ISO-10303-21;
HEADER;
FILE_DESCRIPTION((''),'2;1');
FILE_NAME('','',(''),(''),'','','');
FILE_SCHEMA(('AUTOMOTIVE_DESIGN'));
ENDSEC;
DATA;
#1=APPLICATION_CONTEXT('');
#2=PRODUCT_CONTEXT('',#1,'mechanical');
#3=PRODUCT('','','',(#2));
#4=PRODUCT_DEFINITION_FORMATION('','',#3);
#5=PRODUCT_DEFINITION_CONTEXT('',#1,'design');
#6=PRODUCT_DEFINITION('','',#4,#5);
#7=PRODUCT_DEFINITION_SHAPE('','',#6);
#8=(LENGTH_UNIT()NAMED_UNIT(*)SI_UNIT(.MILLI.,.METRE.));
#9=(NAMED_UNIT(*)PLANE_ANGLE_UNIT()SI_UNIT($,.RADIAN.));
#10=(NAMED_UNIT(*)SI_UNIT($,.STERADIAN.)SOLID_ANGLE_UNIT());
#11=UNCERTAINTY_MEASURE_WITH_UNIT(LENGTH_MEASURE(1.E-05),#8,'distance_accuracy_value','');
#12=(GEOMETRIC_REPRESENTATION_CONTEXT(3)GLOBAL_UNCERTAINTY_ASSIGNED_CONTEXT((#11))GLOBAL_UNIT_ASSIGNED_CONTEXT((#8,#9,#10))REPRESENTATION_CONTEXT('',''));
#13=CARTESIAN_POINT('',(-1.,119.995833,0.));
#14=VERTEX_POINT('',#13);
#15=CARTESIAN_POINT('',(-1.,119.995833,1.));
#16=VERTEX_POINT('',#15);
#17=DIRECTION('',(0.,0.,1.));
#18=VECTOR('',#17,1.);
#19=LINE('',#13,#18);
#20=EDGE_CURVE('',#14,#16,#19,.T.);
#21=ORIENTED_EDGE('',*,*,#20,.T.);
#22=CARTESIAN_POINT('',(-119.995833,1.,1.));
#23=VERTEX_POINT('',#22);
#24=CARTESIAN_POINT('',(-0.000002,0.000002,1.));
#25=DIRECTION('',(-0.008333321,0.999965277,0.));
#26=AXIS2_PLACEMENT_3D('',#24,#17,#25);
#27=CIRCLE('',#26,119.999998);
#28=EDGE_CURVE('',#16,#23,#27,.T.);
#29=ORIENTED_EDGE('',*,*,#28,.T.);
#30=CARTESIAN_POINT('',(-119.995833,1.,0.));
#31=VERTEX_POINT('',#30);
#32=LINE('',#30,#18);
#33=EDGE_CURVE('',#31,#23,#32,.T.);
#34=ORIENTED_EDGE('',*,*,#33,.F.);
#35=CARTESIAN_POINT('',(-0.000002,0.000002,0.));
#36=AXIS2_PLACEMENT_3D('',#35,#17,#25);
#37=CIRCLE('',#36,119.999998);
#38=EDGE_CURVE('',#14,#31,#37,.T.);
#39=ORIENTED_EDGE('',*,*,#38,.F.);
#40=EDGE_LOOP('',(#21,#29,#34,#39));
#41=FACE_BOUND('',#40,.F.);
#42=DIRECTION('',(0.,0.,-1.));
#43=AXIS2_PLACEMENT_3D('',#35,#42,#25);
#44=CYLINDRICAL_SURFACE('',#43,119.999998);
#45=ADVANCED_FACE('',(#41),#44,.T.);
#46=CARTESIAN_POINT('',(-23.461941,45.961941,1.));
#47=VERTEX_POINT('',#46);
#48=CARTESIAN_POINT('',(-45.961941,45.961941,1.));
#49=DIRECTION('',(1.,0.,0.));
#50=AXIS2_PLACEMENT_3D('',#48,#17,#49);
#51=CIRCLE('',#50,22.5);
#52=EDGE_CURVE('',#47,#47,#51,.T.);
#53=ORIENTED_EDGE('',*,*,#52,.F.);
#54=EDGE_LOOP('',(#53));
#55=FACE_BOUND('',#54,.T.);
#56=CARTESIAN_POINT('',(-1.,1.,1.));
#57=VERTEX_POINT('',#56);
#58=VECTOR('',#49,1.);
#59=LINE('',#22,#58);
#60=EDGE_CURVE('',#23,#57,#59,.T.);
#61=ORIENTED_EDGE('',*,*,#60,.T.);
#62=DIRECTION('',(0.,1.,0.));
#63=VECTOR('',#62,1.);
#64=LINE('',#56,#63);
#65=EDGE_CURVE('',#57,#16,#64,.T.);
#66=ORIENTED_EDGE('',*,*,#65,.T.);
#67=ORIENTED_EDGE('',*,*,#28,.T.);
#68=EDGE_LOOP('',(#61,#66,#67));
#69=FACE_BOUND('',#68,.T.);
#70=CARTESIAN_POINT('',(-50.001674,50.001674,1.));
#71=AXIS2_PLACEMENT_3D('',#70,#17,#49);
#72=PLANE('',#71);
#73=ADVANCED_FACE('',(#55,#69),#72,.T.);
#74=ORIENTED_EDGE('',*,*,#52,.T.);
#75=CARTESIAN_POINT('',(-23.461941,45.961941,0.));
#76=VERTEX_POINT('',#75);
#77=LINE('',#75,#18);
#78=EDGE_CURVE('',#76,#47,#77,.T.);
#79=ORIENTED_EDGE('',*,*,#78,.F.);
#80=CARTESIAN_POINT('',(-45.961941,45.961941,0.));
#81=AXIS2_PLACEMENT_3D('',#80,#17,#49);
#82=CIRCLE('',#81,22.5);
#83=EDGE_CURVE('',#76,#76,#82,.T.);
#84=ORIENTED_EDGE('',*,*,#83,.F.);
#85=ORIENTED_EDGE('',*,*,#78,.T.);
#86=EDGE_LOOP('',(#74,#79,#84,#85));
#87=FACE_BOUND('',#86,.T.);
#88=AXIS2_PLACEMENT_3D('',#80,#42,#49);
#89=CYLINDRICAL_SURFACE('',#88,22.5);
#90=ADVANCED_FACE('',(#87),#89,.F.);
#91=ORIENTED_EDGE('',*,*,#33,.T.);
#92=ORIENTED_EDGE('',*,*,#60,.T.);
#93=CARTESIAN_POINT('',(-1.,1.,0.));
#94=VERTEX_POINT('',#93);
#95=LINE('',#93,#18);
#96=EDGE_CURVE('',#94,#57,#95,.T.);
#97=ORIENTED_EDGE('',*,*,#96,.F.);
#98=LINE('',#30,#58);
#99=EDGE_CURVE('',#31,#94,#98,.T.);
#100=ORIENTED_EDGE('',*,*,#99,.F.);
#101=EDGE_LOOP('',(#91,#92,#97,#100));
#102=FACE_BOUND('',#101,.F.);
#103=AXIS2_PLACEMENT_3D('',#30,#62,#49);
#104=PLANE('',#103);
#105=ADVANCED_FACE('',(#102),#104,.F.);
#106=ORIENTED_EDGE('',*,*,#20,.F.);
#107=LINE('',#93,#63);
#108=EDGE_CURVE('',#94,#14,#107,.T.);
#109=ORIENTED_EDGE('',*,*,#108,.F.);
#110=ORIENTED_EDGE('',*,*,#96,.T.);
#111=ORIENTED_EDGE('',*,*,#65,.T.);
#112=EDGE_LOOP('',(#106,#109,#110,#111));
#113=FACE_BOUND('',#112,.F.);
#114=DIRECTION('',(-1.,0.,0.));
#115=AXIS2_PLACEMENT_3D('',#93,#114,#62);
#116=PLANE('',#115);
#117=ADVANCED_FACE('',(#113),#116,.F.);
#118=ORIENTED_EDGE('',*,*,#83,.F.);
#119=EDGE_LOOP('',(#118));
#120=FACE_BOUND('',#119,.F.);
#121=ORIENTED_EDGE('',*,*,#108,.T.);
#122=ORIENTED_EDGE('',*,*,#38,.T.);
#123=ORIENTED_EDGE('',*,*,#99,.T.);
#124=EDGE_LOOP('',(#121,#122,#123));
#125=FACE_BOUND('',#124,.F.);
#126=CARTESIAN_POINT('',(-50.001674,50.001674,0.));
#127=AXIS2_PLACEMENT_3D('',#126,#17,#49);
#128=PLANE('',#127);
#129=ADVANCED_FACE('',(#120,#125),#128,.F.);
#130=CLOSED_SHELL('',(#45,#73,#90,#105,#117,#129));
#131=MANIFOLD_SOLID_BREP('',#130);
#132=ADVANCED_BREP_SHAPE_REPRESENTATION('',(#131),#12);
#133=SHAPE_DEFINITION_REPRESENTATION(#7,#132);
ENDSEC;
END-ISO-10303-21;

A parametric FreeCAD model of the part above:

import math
import FreeCAD as App
import Part
import Sketcher
Q = App.Units.Quantity

doc = App.newDocument("Part")
body = doc.addObject("PartDesign::Body", "Body")

# Sketch on XY plane
sketch1 = doc.addObject("Sketcher::SketchObject", "Sketch")
body.addObject(sketch1)
sketch1.AttachmentSupport = (doc.XY_Plane, [""])
sketch1.MapMode = "FlatFace"
sketch1.addGeometry(Part.LineSegment(App.Vector(-1, 1, 0), App.Vector(-1, 120, 0)), False)
sketch1.addGeometry(Part.ArcOfCircle(Part.Circle(App.Vector(0, 0, 0), App.Vector(0, 0, 1), 120), math.radians(90), math.radians(180)), False)
sketch1.addGeometry(Part.LineSegment(App.Vector(-120, 1, 0), App.Vector(-1, 1, 0)), False)
sketch1.addGeometry(Part.Circle(App.Vector(-46, 46, 0), App.Vector(0, 0, 1), 22), False)
sketch1.addConstraint(Sketcher.Constraint("Coincident", 0, 2, 1, 1))
sketch1.addConstraint(Sketcher.Constraint("Coincident", 1, 2, 2, 1))
sketch1.addConstraint(Sketcher.Constraint("Coincident", 2, 2, 0, 1))
sketch1.addConstraint(Sketcher.Constraint("Vertical", 0))
sketch1.addConstraint(Sketcher.Constraint("Horizontal", 2))
sketch1.addConstraint(Sketcher.Constraint("Coincident", 1, 3, -1, 1))
sketch1.addConstraint(Sketcher.Constraint("Equal", 2, 0))
sketch1.addConstraint(Sketcher.Constraint("Diameter", 3, Q("45 mm")))
sketch1.addConstraint(Sketcher.Constraint("Radius", 1, Q("119.999998 mm")))
sketch1.addConstraint(Sketcher.Constraint("DistanceX", 0, 2, -1, 1, Q("1 mm")))
sketch1.addConstraint(Sketcher.Constraint("DistanceX", 3, 3, -1, 1, Q("45.961941 mm")))
sketch1.addConstraint(Sketcher.Constraint("DistanceY", -1, 1, 3, 3, Q("45.961941 mm")))
pad1 = doc.addObject("PartDesign::Pad", "Pad")
body.addObject(pad1)
pad1.Profile = sketch1
pad1.Length = 1

doc.recompute()
